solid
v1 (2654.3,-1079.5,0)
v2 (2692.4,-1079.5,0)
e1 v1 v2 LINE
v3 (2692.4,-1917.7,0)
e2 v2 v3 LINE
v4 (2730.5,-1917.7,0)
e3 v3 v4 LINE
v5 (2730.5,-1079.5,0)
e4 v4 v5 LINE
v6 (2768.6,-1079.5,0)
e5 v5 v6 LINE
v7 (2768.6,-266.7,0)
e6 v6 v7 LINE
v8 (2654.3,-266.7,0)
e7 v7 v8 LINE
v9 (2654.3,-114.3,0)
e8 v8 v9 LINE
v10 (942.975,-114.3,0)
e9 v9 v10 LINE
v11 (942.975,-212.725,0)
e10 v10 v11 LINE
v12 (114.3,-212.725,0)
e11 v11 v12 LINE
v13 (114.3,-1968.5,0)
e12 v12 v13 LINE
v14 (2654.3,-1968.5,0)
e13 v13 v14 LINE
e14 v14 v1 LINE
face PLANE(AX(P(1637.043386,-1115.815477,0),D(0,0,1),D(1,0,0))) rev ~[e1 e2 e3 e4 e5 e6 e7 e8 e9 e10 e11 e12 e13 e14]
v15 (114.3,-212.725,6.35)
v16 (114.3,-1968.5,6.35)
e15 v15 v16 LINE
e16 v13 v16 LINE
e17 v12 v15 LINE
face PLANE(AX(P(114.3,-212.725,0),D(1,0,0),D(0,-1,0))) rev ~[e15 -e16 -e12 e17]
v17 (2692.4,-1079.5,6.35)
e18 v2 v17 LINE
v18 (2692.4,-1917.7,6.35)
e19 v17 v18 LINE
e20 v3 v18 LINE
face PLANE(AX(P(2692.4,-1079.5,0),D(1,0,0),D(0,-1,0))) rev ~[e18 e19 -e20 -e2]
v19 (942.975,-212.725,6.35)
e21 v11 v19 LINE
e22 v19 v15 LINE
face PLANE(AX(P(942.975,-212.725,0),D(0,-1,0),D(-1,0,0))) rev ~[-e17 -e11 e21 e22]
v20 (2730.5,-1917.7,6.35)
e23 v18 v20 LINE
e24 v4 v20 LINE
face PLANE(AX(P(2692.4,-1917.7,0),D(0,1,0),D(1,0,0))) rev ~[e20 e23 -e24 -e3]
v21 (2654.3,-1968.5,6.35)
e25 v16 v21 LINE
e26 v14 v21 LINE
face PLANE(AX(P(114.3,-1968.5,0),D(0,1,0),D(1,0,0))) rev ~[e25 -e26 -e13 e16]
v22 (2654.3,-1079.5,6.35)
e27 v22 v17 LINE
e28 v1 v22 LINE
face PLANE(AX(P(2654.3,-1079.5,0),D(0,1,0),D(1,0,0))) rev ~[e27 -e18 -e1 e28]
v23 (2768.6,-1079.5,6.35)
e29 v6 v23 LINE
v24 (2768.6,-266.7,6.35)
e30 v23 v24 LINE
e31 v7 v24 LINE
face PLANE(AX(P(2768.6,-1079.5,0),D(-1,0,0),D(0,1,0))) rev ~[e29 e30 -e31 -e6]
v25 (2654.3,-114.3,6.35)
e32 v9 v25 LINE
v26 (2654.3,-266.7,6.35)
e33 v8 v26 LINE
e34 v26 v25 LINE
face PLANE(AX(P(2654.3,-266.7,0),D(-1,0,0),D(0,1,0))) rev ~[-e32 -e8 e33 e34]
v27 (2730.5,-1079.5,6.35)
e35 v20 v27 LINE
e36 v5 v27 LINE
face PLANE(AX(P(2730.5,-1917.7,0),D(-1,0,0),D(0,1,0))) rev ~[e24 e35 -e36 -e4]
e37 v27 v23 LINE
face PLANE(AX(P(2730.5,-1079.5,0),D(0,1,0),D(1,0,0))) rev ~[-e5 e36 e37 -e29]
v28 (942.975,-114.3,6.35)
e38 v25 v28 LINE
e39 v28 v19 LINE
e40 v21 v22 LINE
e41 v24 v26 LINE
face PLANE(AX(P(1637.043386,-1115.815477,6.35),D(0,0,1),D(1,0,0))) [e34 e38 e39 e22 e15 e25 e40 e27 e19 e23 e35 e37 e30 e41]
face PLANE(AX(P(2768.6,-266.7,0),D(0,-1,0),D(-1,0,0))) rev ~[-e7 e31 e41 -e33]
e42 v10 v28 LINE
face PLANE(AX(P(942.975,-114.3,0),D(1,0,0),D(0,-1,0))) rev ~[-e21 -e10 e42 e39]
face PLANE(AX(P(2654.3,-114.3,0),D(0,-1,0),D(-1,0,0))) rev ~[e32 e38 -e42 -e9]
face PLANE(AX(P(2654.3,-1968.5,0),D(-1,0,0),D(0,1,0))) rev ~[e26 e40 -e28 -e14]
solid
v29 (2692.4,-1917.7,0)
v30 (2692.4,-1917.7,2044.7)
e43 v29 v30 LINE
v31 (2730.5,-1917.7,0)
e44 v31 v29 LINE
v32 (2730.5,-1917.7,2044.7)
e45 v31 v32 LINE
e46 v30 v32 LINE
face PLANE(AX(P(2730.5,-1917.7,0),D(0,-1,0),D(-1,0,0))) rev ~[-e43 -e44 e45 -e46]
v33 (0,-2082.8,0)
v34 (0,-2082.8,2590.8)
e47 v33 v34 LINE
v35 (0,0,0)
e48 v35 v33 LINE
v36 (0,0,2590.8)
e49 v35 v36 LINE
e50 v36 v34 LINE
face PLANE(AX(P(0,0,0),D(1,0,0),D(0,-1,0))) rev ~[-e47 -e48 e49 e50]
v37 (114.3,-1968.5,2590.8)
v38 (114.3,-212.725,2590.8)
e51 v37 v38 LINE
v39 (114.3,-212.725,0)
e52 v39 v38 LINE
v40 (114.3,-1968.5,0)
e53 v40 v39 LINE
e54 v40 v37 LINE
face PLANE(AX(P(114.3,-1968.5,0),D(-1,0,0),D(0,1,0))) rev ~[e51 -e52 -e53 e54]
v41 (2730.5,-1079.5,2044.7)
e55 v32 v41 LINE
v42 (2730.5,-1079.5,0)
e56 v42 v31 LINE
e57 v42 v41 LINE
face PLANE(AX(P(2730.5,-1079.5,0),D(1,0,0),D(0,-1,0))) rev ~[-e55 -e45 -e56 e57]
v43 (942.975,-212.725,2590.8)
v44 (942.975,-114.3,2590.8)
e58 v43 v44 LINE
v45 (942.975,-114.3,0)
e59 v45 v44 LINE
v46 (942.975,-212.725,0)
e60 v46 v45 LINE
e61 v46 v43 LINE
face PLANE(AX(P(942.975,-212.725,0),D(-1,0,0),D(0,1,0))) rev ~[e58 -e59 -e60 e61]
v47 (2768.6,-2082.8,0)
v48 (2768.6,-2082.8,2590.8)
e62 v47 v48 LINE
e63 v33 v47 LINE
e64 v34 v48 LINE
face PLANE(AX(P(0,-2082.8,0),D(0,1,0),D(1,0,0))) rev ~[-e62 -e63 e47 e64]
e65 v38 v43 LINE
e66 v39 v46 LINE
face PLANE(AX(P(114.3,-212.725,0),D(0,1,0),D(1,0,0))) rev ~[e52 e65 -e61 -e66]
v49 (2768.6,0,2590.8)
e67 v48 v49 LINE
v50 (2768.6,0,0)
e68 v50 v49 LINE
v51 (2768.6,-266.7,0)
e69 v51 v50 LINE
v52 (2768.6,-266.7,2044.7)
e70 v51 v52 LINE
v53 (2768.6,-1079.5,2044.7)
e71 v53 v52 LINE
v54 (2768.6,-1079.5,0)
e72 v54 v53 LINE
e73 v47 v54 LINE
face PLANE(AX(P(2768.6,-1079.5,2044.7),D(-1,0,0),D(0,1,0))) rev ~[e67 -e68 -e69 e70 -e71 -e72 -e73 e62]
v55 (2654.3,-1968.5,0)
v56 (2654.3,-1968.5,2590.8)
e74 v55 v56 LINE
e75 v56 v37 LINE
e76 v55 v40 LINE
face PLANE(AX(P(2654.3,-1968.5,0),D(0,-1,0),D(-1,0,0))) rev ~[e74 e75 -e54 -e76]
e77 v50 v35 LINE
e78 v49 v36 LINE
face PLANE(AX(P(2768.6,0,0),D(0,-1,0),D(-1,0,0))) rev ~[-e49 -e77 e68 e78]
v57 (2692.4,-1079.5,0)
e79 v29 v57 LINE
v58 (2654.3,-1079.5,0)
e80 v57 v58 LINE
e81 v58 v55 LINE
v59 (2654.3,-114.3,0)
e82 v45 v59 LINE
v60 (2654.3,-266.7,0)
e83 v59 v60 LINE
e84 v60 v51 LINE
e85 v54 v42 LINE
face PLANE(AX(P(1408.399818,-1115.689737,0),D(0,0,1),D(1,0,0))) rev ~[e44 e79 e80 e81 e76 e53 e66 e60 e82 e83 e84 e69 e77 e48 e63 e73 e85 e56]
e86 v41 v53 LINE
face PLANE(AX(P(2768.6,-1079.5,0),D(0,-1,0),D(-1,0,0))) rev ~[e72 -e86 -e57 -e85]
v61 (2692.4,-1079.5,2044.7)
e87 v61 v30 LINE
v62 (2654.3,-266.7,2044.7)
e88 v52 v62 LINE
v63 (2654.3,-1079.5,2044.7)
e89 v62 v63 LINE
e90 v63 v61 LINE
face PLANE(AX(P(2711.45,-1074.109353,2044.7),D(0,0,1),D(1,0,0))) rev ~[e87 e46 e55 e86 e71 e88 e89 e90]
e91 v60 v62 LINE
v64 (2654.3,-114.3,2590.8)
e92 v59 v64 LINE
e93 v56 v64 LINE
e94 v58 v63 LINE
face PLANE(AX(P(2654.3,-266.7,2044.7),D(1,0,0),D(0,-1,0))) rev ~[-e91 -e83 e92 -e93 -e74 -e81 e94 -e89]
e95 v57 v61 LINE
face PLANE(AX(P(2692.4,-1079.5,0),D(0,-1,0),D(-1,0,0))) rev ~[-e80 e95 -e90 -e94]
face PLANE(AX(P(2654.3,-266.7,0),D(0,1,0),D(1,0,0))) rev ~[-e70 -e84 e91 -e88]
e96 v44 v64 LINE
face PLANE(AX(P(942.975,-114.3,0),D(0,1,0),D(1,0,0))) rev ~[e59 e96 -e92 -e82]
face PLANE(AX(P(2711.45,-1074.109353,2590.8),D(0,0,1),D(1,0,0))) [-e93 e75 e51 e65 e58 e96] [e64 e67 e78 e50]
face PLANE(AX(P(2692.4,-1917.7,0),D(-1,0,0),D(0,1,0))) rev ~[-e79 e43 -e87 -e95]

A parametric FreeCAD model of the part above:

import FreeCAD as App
import Part
import Sketcher
Q = App.Units.Quantity


def add_polygon(sketch, points):
    """Adds a closed chain of lines whose ends are joined by coincident constraints."""
    first, n = sketch.GeometryCount, len(points)
    for a, b in zip(points, points[1:] + points[:1]):
        sketch.addGeometry(Part.LineSegment(App.Vector(*a, 0), App.Vector(*b, 0)), False)
    for i in range(n):
        sketch.addConstraint(Sketcher.Constraint("Coincident", first + i, 2, first + (i + 1) % n, 1))

doc = App.newDocument("Part")
body = doc.addObject("PartDesign::Body", "Body")

sketch1 = body.newObject("Sketcher::SketchObject", "Sketch")
sketch1.AttachmentSupport = (doc.getObject("XY_Plane"), [""])
sketch1.MapMode = "FlatFace"
add_polygon(sketch1, [(2768.6, 0), (0, 0), (0, -2082.8), (2768.6, -2082.8), (2768.6, -1079.5), (2730.5, -1079.5), (2730.5, -1917.7), (2692.4, -1917.7), (2692.4, -1079.5), (2654.3, -1079.5), (2654.3, -1968.5), (114.3, -1968.5), (114.3, -212.725), (942.975, -212.725), (942.975, -114.3), (2654.3, -114.3), (2654.3, -266.7), (2768.6, -266.7)])
sketch1.addConstraint(Sketcher.Constraint("Horizontal", 0))
sketch1.addConstraint(Sketcher.Constraint("Vertical", 1))
sketch1.addConstraint(Sketcher.Constraint("Horizontal", 2))
sketch1.addConstraint(Sketcher.Constraint("Vertical", 3))
sketch1.addConstraint(Sketcher.Constraint("Horizontal", 4))
sketch1.addConstraint(Sketcher.Constraint("Vertical", 5))
sketch1.addConstraint(Sketcher.Constraint("Horizontal", 6))
sketch1.addConstraint(Sketcher.Constraint("Vertical", 7))
sketch1.addConstraint(Sketcher.Constraint("Horizontal", 8))
sketch1.addConstraint(Sketcher.Constraint("Vertical", 9))
sketch1.addConstraint(Sketcher.Constraint("Horizontal", 10))
sketch1.addConstraint(Sketcher.Constraint("Vertical", 11))
sketch1.addConstraint(Sketcher.Constraint("Horizontal", 12))
sketch1.addConstraint(Sketcher.Constraint("Vertical", 13))
sketch1.addConstraint(Sketcher.Constraint("Horizontal", 14))
sketch1.addConstraint(Sketcher.Constraint("Vertical", 15))
sketch1.addConstraint(Sketcher.Constraint("Horizontal", 16))
sketch1.addConstraint(Sketcher.Constraint("Vertical", 17))
sketch1.addConstraint(Sketcher.Constraint("Coincident", 0, 2, -1, 1))
sketch1.addConstraint(Sketcher.Constraint("Horizontal", 4, 2, 7, 2))
sketch1.addConstraint(Sketcher.Constraint("Vertical", 9, 2, 14, 2))
sketch1.addConstraint(Sketcher.Constraint("Vertical", 3, 2, 16, 2))
sketch1.addConstraint(Sketcher.Constraint("Equal", 4, 6))
sketch1.addConstraint(Sketcher.Constraint("Equal", 6, 8))
sketch1.addConstraint(Sketcher.Constraint("DistanceX", 0, 2, 0, 1, Q("109 in")))
sketch1.addConstraint(Sketcher.Constraint("DistanceX", 10, 2, 10, 1, Q("100 in")))
sketch1.addConstraint(Sketcher.Constraint("DistanceY", 1, 2, 1, 1, Q("82 in")))
sketch1.addConstraint(Sketcher.Constraint("DistanceY", 5, 2, 5, 1, Q("33 in")))
sketch1.addConstraint(Sketcher.Constraint("DistanceY", 9, 2, 9, 1, Q("35 in")))
sketch1.addConstraint(Sketcher.Constraint("DistanceY", 15, 2, 15, 1, Q("6 in")))
sketch1.addConstraint(Sketcher.Constraint("DistanceX", 4, 2, 4, 1, Q("1.5 in")))
sketch1.addConstraint(Sketcher.Constraint("DistanceY", 3, 1, 3, 2, Q("39.5 in")))
sketch1.addConstraint(Sketcher.Constraint("DistanceY", 17, 1, 17, 2, Q("10.5 in")))
sketch1.addConstraint(Sketcher.Constraint("DistanceX", 12, 1, 12, 2, Q("32.625 in")))
sketch1.addConstraint(Sketcher.Constraint("DistanceY", 11, 1, 11, 2, Q("69.125 in")))
pad1 = body.newObject("PartDesign::Pad", "Pad")
pad1.Profile = sketch1
pad1.Length = Q("102 in")

sketch2 = body.newObject("Sketcher::SketchObject", "Sketch001")
sketch2.AttachmentSupport = (doc.getObject("XY_Plane"), [""])
sketch2.MapMode = "FlatFace"
sketch2.AttachmentOffset = App.Placement(App.Vector(0, 0, 80.5 * 25.4), App.Rotation())
add_polygon(sketch2, [(2768.6, -266.7), (2654.3, -266.7), (2654.3, -1079.5), (2692.4, -1079.5), (2692.4, -1917.7), (2730.5, -1917.7), (2730.5, -1079.5), (2768.6, -1079.5)])
sketch2.addConstraint(Sketcher.Constraint("Horizontal", 0))
sketch2.addConstraint(Sketcher.Constraint("Vertical", 1))
sketch2.addConstraint(Sketcher.Constraint("Horizontal", 2))
sketch2.addConstraint(Sketcher.Constraint("Vertical", 3))
sketch2.addConstraint(Sketcher.Constraint("Horizontal", 4))
sketch2.addConstraint(Sketcher.Constraint("Vertical", 5))
sketch2.addConstraint(Sketcher.Constraint("Horizontal", 6))
sketch2.addConstraint(Sketcher.Constraint("Vertical", 7))
sketch2.addConstraint(Sketcher.Constraint("Horizontal", 2, 2, 5, 2))
sketch2.addConstraint(Sketcher.Constraint("Equal", 2, 4))
sketch2.addConstraint(Sketcher.Constraint("Equal", 4, 6))
sketch2.addConstraint(Sketcher.Constraint("DistanceY", 1, 2, 1, 1, Q("32 in")))
sketch2.addConstraint(Sketcher.Constraint("DistanceY", 3, 2, 3, 1, Q("33 in")))
sketch2.addConstraint(Sketcher.Constraint("DistanceX", 0, 2, 0, 1, Q("4.5 in")))
sketch2.addConstraint(Sketcher.Constraint("DistanceX", -1, 1, 2, 2, Q("106 in")))
sketch2.addConstraint(Sketcher.Constraint("DistanceY", 0, 2, -1, 1, Q("10.5 in")))
pad2 = body.newObject("PartDesign::Pad", "Pad001")
pad2.Profile = sketch2
pad2.Length = Q("21.5 in")
body2 = doc.addObject("PartDesign::Body", "Body001")

sketch3 = body2.newObject("Sketcher::SketchObject", "Sketch002")
sketch3.AttachmentSupport = (doc.getObject("XY_Plane001"), [""])
sketch3.MapMode = "FlatFace"
add_polygon(sketch3, [(942.975, -212.725), (114.3, -212.725), (114.3, -1968.5), (2654.3, -1968.5), (2654.3, -1079.5), (2692.4, -1079.5), (2692.4, -1917.7), (2730.5, -1917.7), (2730.5, -1079.5), (2768.6, -1079.5), (2768.6, -266.7), (2654.3, -266.7), (2654.3, -114.3), (942.975, -114.3)])
sketch3.addConstraint(Sketcher.Constraint("Horizontal", 0))
sketch3.addConstraint(Sketcher.Constraint("Vertical", 1))
sketch3.addConstraint(Sketcher.Constraint("Horizontal", 2))
sketch3.addConstraint(Sketcher.Constraint("Vertical", 3))
sketch3.addConstraint(Sketcher.Constraint("Horizontal", 4))
sketch3.addConstraint(Sketcher.Constraint("Vertical", 5))
sketch3.addConstraint(Sketcher.Constraint("Horizontal", 6))
sketch3.addConstraint(Sketcher.Constraint("Vertical", 7))
sketch3.addConstraint(Sketcher.Constraint("Horizontal", 8))
sketch3.addConstraint(Sketcher.Constraint("Vertical", 9))
sketch3.addConstraint(Sketcher.Constraint("Horizontal", 10))
sketch3.addConstraint(Sketcher.Constraint("Vertical", 11))
sketch3.addConstraint(Sketcher.Constraint("Horizontal", 12))
sketch3.addConstraint(Sketcher.Constraint("Vertical", 13))
sketch3.addConstraint(Sketcher.Constraint("Horizontal", 4, 2, 7, 2))
sketch3.addConstraint(Sketcher.Constraint("Vertical", 3, 2, 10, 2))
sketch3.addConstraint(Sketcher.Constraint("Equal", 4, 6))
sketch3.addConstraint(Sketcher.Constraint("Equal", 6, 8))
sketch3.addConstraint(Sketcher.Constraint("DistanceX", 2, 1, 2, 2, Q("100 in")))
sketch3.addConstraint(Sketcher.Constraint("DistanceY", 3, 1, 3, 2, Q("35 in")))
sketch3.addConstraint(Sketcher.Constraint("DistanceY", 5, 2, 5, 1, Q("33 in")))
sketch3.addConstraint(Sketcher.Constraint("DistanceY", 9, 1, 9, 2, Q("32 in")))
sketch3.addConstraint(Sketcher.Constraint("DistanceY", 11, 1, 11, 2, Q("6 in")))
sketch3.addConstraint(Sketcher.Constraint("DistanceX", 4, 1, 4, 2, Q("1.5 in")))
sketch3.addConstraint(Sketcher.Constraint("DistanceX", -1, 1, 4, 2, Q("106 in")))
sketch3.addConstraint(Sketcher.Constraint("DistanceY", 1, 2, -1, 1, Q("77.5 in")))
sketch3.addConstraint(Sketcher.Constraint("DistanceX", 0, 2, 0, 1, Q("32.625 in")))
sketch3.addConstraint(Sketcher.Constraint("DistanceY", 1, 2, 1, 1, Q("69.125 in")))
pad3 = body2.newObject("PartDesign::Pad", "Pad002")
pad3.Profile = sketch3
pad3.Length = Q("0.25 in")

doc.recompute()
